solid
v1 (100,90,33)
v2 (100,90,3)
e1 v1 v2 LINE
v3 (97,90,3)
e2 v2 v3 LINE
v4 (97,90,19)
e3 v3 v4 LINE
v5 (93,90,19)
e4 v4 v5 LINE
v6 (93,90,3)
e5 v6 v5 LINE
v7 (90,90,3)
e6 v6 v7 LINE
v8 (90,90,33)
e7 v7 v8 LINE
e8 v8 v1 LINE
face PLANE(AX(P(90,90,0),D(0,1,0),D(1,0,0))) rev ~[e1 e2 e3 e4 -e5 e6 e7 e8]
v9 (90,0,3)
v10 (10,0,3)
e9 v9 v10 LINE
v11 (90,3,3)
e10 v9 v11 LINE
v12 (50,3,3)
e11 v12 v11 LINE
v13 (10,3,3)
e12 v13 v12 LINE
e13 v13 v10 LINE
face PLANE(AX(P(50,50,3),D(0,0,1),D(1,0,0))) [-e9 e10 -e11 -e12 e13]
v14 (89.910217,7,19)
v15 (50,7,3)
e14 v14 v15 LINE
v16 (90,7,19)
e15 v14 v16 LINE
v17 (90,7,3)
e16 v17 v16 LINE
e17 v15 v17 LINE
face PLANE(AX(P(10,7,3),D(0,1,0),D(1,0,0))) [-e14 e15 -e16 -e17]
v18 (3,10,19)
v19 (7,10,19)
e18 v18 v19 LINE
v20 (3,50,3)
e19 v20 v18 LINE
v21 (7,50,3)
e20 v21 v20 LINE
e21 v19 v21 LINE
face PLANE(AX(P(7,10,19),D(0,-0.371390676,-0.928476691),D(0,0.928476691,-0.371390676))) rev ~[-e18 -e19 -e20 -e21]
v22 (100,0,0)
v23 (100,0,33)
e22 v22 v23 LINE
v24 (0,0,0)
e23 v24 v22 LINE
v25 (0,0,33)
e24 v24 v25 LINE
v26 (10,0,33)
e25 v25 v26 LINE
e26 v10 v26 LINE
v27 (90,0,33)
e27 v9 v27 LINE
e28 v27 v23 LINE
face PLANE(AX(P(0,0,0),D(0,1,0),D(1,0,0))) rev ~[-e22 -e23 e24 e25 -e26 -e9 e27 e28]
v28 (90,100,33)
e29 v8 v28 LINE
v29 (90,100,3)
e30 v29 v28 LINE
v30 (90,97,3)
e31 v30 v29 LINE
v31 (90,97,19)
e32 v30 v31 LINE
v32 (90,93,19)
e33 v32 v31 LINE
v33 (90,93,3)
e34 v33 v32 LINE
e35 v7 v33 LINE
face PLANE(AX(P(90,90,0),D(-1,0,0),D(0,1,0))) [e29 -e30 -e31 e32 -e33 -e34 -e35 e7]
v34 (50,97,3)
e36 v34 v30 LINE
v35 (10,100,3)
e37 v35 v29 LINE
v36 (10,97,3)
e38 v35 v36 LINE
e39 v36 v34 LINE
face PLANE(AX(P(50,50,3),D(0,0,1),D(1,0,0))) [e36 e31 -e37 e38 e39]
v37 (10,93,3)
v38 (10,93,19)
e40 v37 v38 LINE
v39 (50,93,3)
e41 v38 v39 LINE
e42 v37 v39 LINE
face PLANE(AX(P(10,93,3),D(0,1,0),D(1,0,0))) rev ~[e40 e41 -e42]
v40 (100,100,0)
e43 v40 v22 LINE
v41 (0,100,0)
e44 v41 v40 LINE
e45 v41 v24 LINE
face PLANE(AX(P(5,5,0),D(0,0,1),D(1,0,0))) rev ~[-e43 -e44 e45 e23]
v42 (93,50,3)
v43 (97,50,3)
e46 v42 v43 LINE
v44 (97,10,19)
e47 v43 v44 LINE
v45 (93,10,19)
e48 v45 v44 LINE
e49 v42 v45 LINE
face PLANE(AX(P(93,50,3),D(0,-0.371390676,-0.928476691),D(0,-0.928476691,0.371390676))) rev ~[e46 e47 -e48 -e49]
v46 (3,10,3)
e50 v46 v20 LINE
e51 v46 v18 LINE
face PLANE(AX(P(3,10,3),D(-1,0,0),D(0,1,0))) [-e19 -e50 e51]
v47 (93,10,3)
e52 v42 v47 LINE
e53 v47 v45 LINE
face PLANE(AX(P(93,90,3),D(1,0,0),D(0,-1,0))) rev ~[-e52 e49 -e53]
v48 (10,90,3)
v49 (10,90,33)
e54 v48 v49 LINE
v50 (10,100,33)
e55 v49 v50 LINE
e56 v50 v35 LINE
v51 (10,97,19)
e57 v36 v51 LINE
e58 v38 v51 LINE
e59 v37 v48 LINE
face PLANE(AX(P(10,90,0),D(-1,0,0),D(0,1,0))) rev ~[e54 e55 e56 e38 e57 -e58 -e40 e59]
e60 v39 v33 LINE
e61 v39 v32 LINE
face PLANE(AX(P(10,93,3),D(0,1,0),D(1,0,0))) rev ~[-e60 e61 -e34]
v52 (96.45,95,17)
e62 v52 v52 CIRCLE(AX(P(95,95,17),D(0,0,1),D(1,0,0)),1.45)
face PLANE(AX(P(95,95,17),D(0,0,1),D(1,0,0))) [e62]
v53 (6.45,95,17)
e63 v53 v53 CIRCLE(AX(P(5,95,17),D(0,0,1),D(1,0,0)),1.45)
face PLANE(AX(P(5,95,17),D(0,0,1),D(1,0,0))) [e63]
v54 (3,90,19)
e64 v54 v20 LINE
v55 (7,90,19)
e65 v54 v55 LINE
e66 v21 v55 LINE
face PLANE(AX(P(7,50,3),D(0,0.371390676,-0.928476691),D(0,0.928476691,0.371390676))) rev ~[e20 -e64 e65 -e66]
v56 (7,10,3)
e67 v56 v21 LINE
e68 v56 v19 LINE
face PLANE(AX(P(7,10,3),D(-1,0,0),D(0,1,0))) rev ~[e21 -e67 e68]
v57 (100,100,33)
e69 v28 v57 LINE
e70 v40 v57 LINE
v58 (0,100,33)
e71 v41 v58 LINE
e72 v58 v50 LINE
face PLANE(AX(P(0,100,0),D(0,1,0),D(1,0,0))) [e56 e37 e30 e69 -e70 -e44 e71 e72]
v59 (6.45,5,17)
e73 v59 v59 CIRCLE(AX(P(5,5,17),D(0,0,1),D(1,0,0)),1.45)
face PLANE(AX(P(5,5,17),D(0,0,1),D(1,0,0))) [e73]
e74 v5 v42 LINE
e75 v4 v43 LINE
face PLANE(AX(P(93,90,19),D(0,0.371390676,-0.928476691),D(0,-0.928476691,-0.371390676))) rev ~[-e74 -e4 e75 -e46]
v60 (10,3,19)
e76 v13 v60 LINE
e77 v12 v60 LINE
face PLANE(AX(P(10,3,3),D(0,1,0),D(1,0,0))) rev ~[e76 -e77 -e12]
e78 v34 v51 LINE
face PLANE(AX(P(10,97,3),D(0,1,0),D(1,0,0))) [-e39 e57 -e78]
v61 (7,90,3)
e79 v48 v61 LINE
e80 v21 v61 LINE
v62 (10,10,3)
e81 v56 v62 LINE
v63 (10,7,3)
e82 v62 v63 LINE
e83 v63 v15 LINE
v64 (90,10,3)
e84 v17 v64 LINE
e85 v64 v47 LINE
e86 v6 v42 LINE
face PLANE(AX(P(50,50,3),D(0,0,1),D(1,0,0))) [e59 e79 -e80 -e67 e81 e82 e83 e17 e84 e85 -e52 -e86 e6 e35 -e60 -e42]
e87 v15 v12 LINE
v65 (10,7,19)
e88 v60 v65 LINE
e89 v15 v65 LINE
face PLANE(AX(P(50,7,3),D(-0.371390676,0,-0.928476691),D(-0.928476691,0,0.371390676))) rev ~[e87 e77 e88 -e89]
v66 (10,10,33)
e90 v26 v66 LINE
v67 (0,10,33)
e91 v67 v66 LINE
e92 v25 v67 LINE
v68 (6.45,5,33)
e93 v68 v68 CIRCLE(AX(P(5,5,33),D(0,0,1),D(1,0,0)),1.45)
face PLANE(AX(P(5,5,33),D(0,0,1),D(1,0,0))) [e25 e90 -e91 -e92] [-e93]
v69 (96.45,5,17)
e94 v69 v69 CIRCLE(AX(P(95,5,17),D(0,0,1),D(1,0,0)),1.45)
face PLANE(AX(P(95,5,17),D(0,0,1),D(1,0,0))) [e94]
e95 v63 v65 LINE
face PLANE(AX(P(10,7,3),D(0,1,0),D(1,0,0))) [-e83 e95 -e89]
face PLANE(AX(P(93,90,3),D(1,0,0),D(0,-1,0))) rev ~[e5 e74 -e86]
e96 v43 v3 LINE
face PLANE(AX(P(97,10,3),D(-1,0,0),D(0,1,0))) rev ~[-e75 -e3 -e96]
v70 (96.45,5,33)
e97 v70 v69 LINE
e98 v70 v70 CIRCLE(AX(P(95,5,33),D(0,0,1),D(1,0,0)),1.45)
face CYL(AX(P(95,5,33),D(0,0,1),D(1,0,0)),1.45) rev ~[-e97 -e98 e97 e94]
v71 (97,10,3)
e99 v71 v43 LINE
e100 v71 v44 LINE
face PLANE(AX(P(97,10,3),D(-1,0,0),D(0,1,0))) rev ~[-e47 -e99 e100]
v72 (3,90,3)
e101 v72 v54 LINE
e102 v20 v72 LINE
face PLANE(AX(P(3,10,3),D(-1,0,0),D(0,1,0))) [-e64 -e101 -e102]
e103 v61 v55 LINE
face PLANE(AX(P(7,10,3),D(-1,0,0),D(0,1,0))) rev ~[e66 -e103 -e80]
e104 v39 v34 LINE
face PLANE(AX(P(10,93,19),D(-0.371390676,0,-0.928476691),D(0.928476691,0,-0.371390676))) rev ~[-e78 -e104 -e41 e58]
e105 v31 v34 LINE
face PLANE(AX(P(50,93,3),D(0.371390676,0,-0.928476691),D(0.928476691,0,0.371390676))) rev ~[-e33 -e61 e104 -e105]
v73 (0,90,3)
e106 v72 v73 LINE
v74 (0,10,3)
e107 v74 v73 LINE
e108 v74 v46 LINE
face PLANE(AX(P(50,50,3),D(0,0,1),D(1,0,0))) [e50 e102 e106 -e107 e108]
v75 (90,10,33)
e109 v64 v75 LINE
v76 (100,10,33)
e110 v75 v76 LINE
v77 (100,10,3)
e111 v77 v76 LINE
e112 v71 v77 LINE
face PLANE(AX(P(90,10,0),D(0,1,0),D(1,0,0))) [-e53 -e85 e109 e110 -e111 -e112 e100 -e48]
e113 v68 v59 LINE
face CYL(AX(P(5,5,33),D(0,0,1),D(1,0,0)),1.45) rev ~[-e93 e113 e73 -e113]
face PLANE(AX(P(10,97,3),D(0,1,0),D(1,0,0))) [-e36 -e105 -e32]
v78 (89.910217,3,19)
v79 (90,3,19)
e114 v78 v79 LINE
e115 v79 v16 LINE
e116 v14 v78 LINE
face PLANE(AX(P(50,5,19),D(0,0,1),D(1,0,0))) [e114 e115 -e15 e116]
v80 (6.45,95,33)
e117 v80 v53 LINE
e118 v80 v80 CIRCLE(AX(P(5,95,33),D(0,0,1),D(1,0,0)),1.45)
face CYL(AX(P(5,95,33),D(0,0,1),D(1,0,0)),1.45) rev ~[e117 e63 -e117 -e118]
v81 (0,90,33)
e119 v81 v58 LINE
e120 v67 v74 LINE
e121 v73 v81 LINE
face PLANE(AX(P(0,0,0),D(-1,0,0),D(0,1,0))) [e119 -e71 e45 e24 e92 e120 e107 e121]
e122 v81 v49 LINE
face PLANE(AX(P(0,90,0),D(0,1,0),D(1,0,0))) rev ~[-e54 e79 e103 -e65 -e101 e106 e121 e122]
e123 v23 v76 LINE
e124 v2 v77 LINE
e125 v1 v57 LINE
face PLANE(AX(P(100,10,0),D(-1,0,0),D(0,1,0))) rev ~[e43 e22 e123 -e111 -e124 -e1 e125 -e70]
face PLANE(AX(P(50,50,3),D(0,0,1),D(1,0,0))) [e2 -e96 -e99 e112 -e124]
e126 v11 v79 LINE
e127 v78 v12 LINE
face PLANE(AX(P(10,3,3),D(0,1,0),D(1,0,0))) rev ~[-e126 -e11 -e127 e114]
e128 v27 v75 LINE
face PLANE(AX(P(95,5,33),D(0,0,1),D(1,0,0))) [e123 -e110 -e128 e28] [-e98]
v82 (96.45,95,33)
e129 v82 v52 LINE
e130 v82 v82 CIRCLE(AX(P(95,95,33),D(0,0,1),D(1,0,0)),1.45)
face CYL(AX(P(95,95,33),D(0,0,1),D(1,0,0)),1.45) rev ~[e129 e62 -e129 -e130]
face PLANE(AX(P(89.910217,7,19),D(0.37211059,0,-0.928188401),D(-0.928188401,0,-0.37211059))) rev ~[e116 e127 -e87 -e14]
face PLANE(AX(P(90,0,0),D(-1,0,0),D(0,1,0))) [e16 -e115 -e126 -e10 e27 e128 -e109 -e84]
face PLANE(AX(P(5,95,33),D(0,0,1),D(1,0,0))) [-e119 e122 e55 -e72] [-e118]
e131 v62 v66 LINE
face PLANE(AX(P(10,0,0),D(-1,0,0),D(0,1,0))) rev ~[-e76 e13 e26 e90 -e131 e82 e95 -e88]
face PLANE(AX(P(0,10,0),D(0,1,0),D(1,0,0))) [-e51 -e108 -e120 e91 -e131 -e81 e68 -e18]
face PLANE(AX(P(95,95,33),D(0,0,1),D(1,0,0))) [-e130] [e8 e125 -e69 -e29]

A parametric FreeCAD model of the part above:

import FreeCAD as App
import Part
import Sketcher

V = App.Vector


def add_polygon(sketch, points):
    """Adds a closed chain of lines whose ends are joined by coincident constraints."""
    first, n = sketch.GeometryCount, len(points)
    for a, b in zip(points, points[1:] + points[:1]):
        sketch.addGeometry(Part.LineSegment(App.Vector(*a, 0), App.Vector(*b, 0)), False)
    for i in range(n):
        sketch.addConstraint(Sketcher.Constraint("Coincident", first + i, 2, first + (i + 1) % n, 1))

doc = App.newDocument("Part")
body = doc.addObject("PartDesign::Body", "Body")

# Sketch on XY plane
sketch1 = body.newObject("Sketcher::SketchObject", "Sketch")
sketch1.AttachmentSupport = (doc.getObject("XY_Plane"), [""])
sketch1.MapMode = "FlatFace"
add_polygon(sketch1, [(10, 10), (10, 0), (90, 0), (90, 10), (100, 10), (100, 90), (90, 90), (90, 100), (10, 100), (10, 90), (0, 90), (0, 10)])  # lines 0-11
sketch1.addConstraint([
    Sketcher.Constraint("Vertical", 0),
    Sketcher.Constraint("Horizontal", 1),
    Sketcher.Constraint("Vertical", 2),
    Sketcher.Constraint("Horizontal", 3),
    Sketcher.Constraint("Vertical", 4),
    Sketcher.Constraint("Horizontal", 5),
    Sketcher.Constraint("Vertical", 6),
    Sketcher.Constraint("Horizontal", 7),
    Sketcher.Constraint("Vertical", 8),
    Sketcher.Constraint("Horizontal", 9),
    Sketcher.Constraint("Vertical", 10),
    Sketcher.Constraint("Horizontal", 11),
    Sketcher.Constraint("PointOnObject", 0, 2, -1),
    Sketcher.Constraint("PointOnObject", 9, 2, -2),
    Sketcher.Constraint("Horizontal", 5, 2, 8, 2),
    Sketcher.Constraint("Horizontal", 3, 2, 10, 2),
    Sketcher.Constraint("Vertical", 2, 2, 5, 2),
    Sketcher.Constraint("Vertical", 0, 2, 7, 2),
    Sketcher.Constraint("Equal", 5, 9),
    Sketcher.Constraint("Equal", 11, 0),
    Sketcher.Constraint("Equal", 7, 4),
    Sketcher.Constraint("Equal", 2, 6),
    Sketcher.Constraint("DistanceX", 1, 1, 1, 2, 80.0),
    Sketcher.Constraint("DistanceX", 3, 1, 3, 2, 10.0),
])
pad1 = body.newObject("PartDesign::Pad", "Pad")
pad1.Profile = sketch1
pad1.Length = 3

# Sketch on XY plane
sketch2 = body.newObject("Sketcher::SketchObject", "Sketch001")
sketch2.AttachmentSupport = (doc.getObject("XY_Plane"), [""])
sketch2.MapMode = "FlatFace"
add_polygon(sketch2, [(0, 10), (0, 0), (10, 0), (10, 10)])  # lines 0-3
add_polygon(sketch2, [(0, 100), (0, 90), (10, 90), (10, 100)])  # lines 4-7
add_polygon(sketch2, [(90, 100), (90, 90), (100, 90), (100, 100)])  # lines 8-11
add_polygon(sketch2, [(90, 10), (90, 0), (100, 0), (100, 10)])  # lines 12-15
sketch2.addConstraint([
    Sketcher.Constraint("Vertical", 0),
    Sketcher.Constraint("Horizontal", 1),
    Sketcher.Constraint("Vertical", 2),
    Sketcher.Constraint("Horizontal", 3),
    Sketcher.Constraint("Vertical", 4),
    Sketcher.Constraint("Horizontal", 5),
    Sketcher.Constraint("Vertical", 6),
    Sketcher.Constraint("Horizontal", 7),
    Sketcher.Constraint("Vertical", 8),
    Sketcher.Constraint("Horizontal", 9),
    Sketcher.Constraint("Vertical", 10),
    Sketcher.Constraint("Horizontal", 11),
    Sketcher.Constraint("Vertical", 12),
    Sketcher.Constraint("Horizontal", 13),
    Sketcher.Constraint("Vertical", 14),
    Sketcher.Constraint("Horizontal", 15),
    Sketcher.Constraint("Coincident", 0, 2, -1, 1),
    Sketcher.Constraint("PointOnObject", 4, 2, -2),
    Sketcher.Constraint("PointOnObject", 12, 2, -1),
    Sketcher.Constraint("Horizontal", 5, 2, 8, 2),
    Sketcher.Constraint("Horizontal", 7, 2, 10, 2),
    Sketcher.Constraint("Horizontal", 3, 2, 14, 2),
    Sketcher.Constraint("Vertical", 2, 2, 5, 2),
    Sketcher.Constraint("Vertical", 11, 2, 12, 2),
    Sketcher.Constraint("Vertical", 10, 2, 13, 2),
    Sketcher.Constraint("Equal", 7, 9),
    Sketcher.Constraint("Equal", 15, 0),
    Sketcher.Constraint("Equal", 2, 4),
    Sketcher.Constraint("DistanceX", 1, 1, 1, 2, 10.0),
    Sketcher.Constraint("DistanceY", -1, 1, 4, 2, 90.0),
    Sketcher.Constraint("DistanceX", -1, 1, 8, 2, 90.0),
])
pad2 = body.newObject("PartDesign::Pad", "Pad001")
pad2.Profile = sketch2
pad2.Length = 33

# Sketch on XY plane
sketch3 = body.newObject("Sketcher::SketchObject", "Sketch002")
sketch3.AttachmentSupport = (doc.getObject("XY_Plane"), [""])
sketch3.MapMode = "FlatFace"
sketch3.AttachmentOffset = App.Placement(V(0, 0, 33), App.Rotation())
sketch3.addGeometry(Part.Circle(V(5, 95, 0), V(0, 0, 1), 1.45), False)
sketch3.addConstraint([
    Sketcher.Constraint("Diameter", 0, 2.9),
    Sketcher.Constraint("DistanceX", -1, 1, 0, 3, 5.0),
    Sketcher.Constraint("DistanceY", -1, 1, 0, 3, 95.0),
])
pocket1 = body.newObject("PartDesign::Pocket", "Pocket")
pocket1.Profile = sketch3
pocket1.Length = 16

# Sketch on XY plane
sketch4 = body.newObject("Sketcher::SketchObject", "Sketch003")
sketch4.AttachmentSupport = (doc.getObject("XY_Plane"), [""])
sketch4.MapMode = "FlatFace"
sketch4.AttachmentOffset = App.Placement(V(0, 0, 33), App.Rotation())
sketch4.addGeometry(Part.Circle(V(95, 95, 0), V(0, 0, 1), 1.45), False)
sketch4.addConstraint([
    Sketcher.Constraint("Diameter", 0, 2.9),
    Sketcher.Constraint("DistanceX", -1, 1, 0, 3, 95.0),
    Sketcher.Constraint("DistanceY", -1, 1, 0, 3, 95.0),
])
pocket2 = body.newObject("PartDesign::Pocket", "Pocket001")
pocket2.Profile = sketch4
pocket2.Length = 16

# Sketch on XY plane
sketch5 = body.newObject("Sketcher::SketchObject", "Sketch004")
sketch5.AttachmentSupport = (doc.getObject("XY_Plane"), [""])
sketch5.MapMode = "FlatFace"
sketch5.AttachmentOffset = App.Placement(V(0, 0, 33), App.Rotation())
sketch5.addGeometry(Part.Circle(V(5, 5, 0), V(0, 0, 1), 1.45), False)
sketch5.addConstraint([
    Sketcher.Constraint("Diameter", 0, 2.9),
    Sketcher.Constraint("DistanceX", -1, 1, 0, 3, 5.0),
    Sketcher.Constraint("DistanceY", -1, 1, 0, 3, 5.0),
])
pocket3 = body.newObject("PartDesign::Pocket", "Pocket002")
pocket3.Profile = sketch5
pocket3.Length = 16

# Sketch on XY plane
sketch6 = body.newObject("Sketcher::SketchObject", "Sketch005")
sketch6.AttachmentSupport = (doc.getObject("XY_Plane"), [""])
sketch6.MapMode = "FlatFace"
sketch6.AttachmentOffset = App.Placement(V(0, 0, 33), App.Rotation())
sketch6.addGeometry(Part.Circle(V(95, 5, 0), V(0, 0, 1), 1.45), False)
sketch6.addConstraint([
    Sketcher.Constraint("Diameter", 0, 2.9),
    Sketcher.Constraint("DistanceX", -1, 1, 0, 3, 95.0),
    Sketcher.Constraint("DistanceY", -1, 1, 0, 3, 5.0),
])
pocket4 = body.newObject("PartDesign::Pocket", "Pocket003")
pocket4.Profile = sketch6
pocket4.Length = 16

# Sketch on XY plane
sketch7 = body.newObject("Sketcher::SketchObject", "Sketch006")
sketch7.AttachmentSupport = (doc.getObject("XY_Plane"), [""])
sketch7.MapMode = "FlatFace"
sketch7.AttachmentOffset = App.Placement(V(0, 0, 3), App.Rotation())
add_polygon(sketch7, [(93, 10), (97, 10), (97, 90), (93, 90)])  # lines 0-3
add_polygon(sketch7, [(10, 7), (10, 3), (90, 3), (90, 7)])  # lines 4-7
add_polygon(sketch7, [(3, 90), (3, 10), (7, 10), (7, 90)])  # lines 8-11
add_polygon(sketch7, [(10, 97), (10, 93), (90, 93), (90, 97)])  # lines 12-15
sketch7.addConstraint([
    Sketcher.Constraint("Horizontal", 0),
    Sketcher.Constraint("Vertical", 1),
    Sketcher.Constraint("Horizontal", 2),
    Sketcher.Constraint("Vertical", 3),
    Sketcher.Constraint("Vertical", 4),
    Sketcher.Constraint("Horizontal", 5),
    Sketcher.Constraint("Vertical", 6),
    Sketcher.Constraint("Horizontal", 7),
    Sketcher.Constraint("Vertical", 8),
    Sketcher.Constraint("Horizontal", 9),
    Sketcher.Constraint("Vertical", 10),
    Sketcher.Constraint("Horizontal", 11),
    Sketcher.Constraint("Vertical", 12),
    Sketcher.Constraint("Horizontal", 13),
    Sketcher.Constraint("Vertical", 14),
    Sketcher.Constraint("Horizontal", 15),
    Sketcher.Constraint("Horizontal", 3, 2, 8, 2),
    Sketcher.Constraint("Horizontal", 2, 2, 10, 2),
    Sketcher.Constraint("Vertical", 7, 2, 12, 2),
    Sketcher.Constraint("Vertical", 6, 2, 13, 2),
    Sketcher.Constraint("Equal", 2, 9),
    Sketcher.Constraint("Equal", 15, 1),
    Sketcher.Constraint("Equal", 11, 4),
    Sketcher.Constraint("Equal", 6, 12),
    Sketcher.Constraint("DistanceX", 0, 1, 0, 2, 4.0),
    Sketcher.Constraint("DistanceX", 5, 1, 5, 2, 80.0),
    Sketcher.Constraint("DistanceX", -1, 1, 0, 2, 97.0),
    Sketcher.Constraint("DistanceY", -1, 1, 0, 2, 10.0),
    Sketcher.Constraint("DistanceX", -1, 1, 4, 2, 10.0),
    Sketcher.Constraint("DistanceY", -1, 1, 4, 2, 3.0),
    Sketcher.Constraint("DistanceX", -1, 1, 8, 2, 3.0),
    Sketcher.Constraint("DistanceY", -1, 1, 12, 2, 93.0),
])
pad3 = body.newObject("PartDesign::Pad", "Pad002")
pad3.Profile = sketch7
pad3.Length = 16

# Sketch on XZ plane
sketch8 = body.newObject("Sketcher::SketchObject", "Sketch007")
sketch8.AttachmentSupport = (doc.getObject("XZ_Plane"), [""])
sketch8.MapMode = "FlatFace"
sketch8.AttachmentOffset = App.Placement(V(0, 0, -7), App.Rotation())
add_polygon(sketch8, [(89.910217, 19), (50, 3), (10, 19)])  # lines 0-2
sketch8.addConstraint([
    Sketcher.Constraint("Horizontal", 2),
    Sketcher.Constraint("DistanceX", -1, 1, 0, 2, 50.0),
    Sketcher.Constraint("DistanceY", -1, 1, 0, 2, 3.0),
    Sketcher.Constraint("DistanceX", -1, 1, 1, 2, 10.0),
    Sketcher.Constraint("DistanceY", -1, 1, 1, 2, 19.0),
    Sketcher.Constraint("Distance", 0, 42.99797),
])
pocket5 = body.newObject("PartDesign::Pocket", "Pocket004")
pocket5.Profile = sketch8
pocket5.Length = 16
pocket5.Reversed = True

# Sketch on YZ plane
sketch9 = body.newObject("Sketcher::SketchObject", "Sketch008")
sketch9.AttachmentSupport = (doc.getObject("YZ_Plane"), [""])
sketch9.MapMode = "FlatFace"
sketch9.AttachmentOffset = App.Placement(V(0, 0, 7), App.Rotation())
add_polygon(sketch9, [(10, 19), (50, 3), (90, 19)])  # lines 0-2
sketch9.addConstraint([
    Sketcher.Constraint("Horizontal", 2),
    Sketcher.Constraint("Equal", 0, 1),
    Sketcher.Constraint("DistanceX", 2, 2, 2, 1, 80.0),
    Sketcher.Constraint("DistanceX", -1, 1, 0, 2, 50.0),
    Sketcher.Constraint("DistanceY", -1, 1, 0, 2, 3.0),
    Sketcher.Constraint("DistanceY", -1, 1, 1, 2, 19.0),
])
pocket6 = body.newObject("PartDesign::Pocket", "Pocket005")
pocket6.Profile = sketch9
pocket6.Length = 16

# Sketch on XZ plane
sketch10 = body.newObject("Sketcher::SketchObject", "Sketch009")
sketch10.AttachmentSupport = (doc.getObject("XZ_Plane"), [""])
sketch10.MapMode = "FlatFace"
sketch10.AttachmentOffset = App.Placement(V(0, 0, -93), App.Rotation())
add_polygon(sketch10, [(10, 19), (50, 3), (90, 19)])  # lines 0-2
sketch10.addConstraint([
    Sketcher.Constraint("Horizontal", 2),
    Sketcher.Constraint("Equal", 0, 1),
    Sketcher.Constraint("DistanceX", 2, 2, 2, 1, 80.0),
    Sketcher.Constraint("DistanceX", -1, 1, 0, 2, 50.0),
    Sketcher.Constraint("DistanceY", -1, 1, 0, 2, 3.0),
    Sketcher.Constraint("DistanceY", -1, 1, 1, 2, 19.0),
])
pocket7 = body.newObject("PartDesign::Pocket", "Pocket006")
pocket7.Profile = sketch10
pocket7.Length = 16

# Sketch on YZ plane
sketch11 = body.newObject("Sketcher::SketchObject", "Sketch010")
sketch11.AttachmentSupport = (doc.getObject("YZ_Plane"), [""])
sketch11.MapMode = "FlatFace"
sketch11.AttachmentOffset = App.Placement(V(0, 0, 93), App.Rotation())
add_polygon(sketch11, [(90, 19), (50, 3), (10, 19)])  # lines 0-2
sketch11.addConstraint([
    Sketcher.Constraint("Horizontal", 2),
    Sketcher.Constraint("Equal", 0, 1),
    Sketcher.Constraint("DistanceX", 2, 1, 2, 2, 80.0),
    Sketcher.Constraint("DistanceX", -1, 1, 0, 2, 50.0),
    Sketcher.Constraint("DistanceY", -1, 1, 0, 2, 3.0),
    Sketcher.Constraint("DistanceY", -1, 1, 1, 2, 19.0),
])
pocket8 = body.newObject("PartDesign::Pocket", "Pocket007")
pocket8.Profile = sketch11
pocket8.Length = 16
pocket8.Reversed = True

doc.recompute()
